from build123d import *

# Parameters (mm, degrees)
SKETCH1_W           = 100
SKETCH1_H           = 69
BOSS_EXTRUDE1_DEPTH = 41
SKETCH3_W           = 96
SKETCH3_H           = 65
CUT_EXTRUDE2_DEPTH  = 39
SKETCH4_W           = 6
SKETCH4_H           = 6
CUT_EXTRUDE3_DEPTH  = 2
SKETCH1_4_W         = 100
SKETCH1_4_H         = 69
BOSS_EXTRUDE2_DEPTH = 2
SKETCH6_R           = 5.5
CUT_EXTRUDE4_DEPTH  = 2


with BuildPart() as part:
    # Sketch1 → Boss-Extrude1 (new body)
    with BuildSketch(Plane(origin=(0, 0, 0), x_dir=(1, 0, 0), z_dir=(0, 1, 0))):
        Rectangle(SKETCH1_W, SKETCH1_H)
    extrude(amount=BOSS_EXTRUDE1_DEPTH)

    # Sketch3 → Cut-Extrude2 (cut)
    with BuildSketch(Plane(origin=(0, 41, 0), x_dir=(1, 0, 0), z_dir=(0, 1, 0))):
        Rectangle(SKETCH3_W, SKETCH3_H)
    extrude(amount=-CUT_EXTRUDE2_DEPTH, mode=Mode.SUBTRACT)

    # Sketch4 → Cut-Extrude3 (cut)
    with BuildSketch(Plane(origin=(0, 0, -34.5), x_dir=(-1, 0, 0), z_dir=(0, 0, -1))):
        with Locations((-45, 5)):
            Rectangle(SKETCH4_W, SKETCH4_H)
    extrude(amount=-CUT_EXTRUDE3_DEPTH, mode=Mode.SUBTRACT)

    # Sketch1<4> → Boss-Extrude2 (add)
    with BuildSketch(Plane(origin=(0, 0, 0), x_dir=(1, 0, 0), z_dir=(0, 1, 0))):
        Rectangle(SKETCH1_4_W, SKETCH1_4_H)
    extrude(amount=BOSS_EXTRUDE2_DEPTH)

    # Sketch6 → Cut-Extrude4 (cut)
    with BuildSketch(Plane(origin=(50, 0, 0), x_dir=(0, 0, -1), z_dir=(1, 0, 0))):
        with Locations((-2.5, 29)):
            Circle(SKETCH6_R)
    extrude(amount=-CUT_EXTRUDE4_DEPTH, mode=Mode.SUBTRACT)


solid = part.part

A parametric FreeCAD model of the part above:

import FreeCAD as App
import Part
import Sketcher

doc = App.newDocument("Part")
body = doc.addObject("PartDesign::Body", "Body")

sketch1 = body.newObject("Sketcher::SketchObject", "Sketch")
sketch1.AttachmentSupport = (doc.getObject("XZ_Plane"), [""])
sketch1.MapMode = "FlatFace"
sketch1.addGeometry(Part.LineSegment(App.Vector(-50, -34, 0), App.Vector(-50, 34, 0)), False)
sketch1.addGeometry(Part.LineSegment(App.Vector(-50, 34, 0), App.Vector(50, 34, 0)), False)
sketch1.addGeometry(Part.LineSegment(App.Vector(50, 34, 0), App.Vector(50, -34, 0)), False)
sketch1.addGeometry(Part.LineSegment(App.Vector(50, -34, 0), App.Vector(-50, -34, 0)), False)
sketch1.addConstraint(Sketcher.Constraint("Coincident", 0, 2, 1, 1))
sketch1.addConstraint(Sketcher.Constraint("Coincident", 1, 2, 2, 1))
sketch1.addConstraint(Sketcher.Constraint("Coincident", 2, 2, 3, 1))
sketch1.addConstraint(Sketcher.Constraint("Coincident", 3, 2, 0, 1))
sketch1.addConstraint(Sketcher.Constraint("Vertical", 0))
sketch1.addConstraint(Sketcher.Constraint("Horizontal", 1))
sketch1.addConstraint(Sketcher.Constraint("Vertical", 2))
sketch1.addConstraint(Sketcher.Constraint("Horizontal", 3))
sketch1.addConstraint(Sketcher.Constraint("Symmetric", 0, 2, 2, 2, -1, 1))
sketch1.addConstraint(Sketcher.Constraint("DistanceX", 1, 1, 1, 2, 100.0))
sketch1.addConstraint(Sketcher.Constraint("DistanceY", 0, 1, 0, 2, 69.0))
pad1 = body.newObject("PartDesign::Pad", "Pad")
pad1.Profile = sketch1
pad1.Length = 41
pad1.Reversed = True

sketch2 = body.newObject("Sketcher::SketchObject", "Sketch001")
sketch2.AttachmentSupport = (doc.getObject("XZ_Plane"), [""])
sketch2.MapMode = "FlatFace"
sketch2.AttachmentOffset = App.Placement(App.Vector(0, 0, -41), App.Rotation())
sketch2.addGeometry(Part.LineSegment(App.Vector(-48, -32, 0), App.Vector(-48, 32, 0)), False)
sketch2.addGeometry(Part.LineSegment(App.Vector(-48, 32, 0), App.Vector(48, 32, 0)), False)
sketch2.addGeometry(Part.LineSegment(App.Vector(48, 32, 0), App.Vector(48, -32, 0)), False)
sketch2.addGeometry(Part.LineSegment(App.Vector(48, -32, 0), App.Vector(-48, -32, 0)), False)
sketch2.addConstraint(Sketcher.Constraint("Coincident", 0, 2, 1, 1))
sketch2.addConstraint(Sketcher.Constraint("Coincident", 1, 2, 2, 1))
sketch2.addConstraint(Sketcher.Constraint("Coincident", 2, 2, 3, 1))
sketch2.addConstraint(Sketcher.Constraint("Coincident", 3, 2, 0, 1))
sketch2.addConstraint(Sketcher.Constraint("Vertical", 0))
sketch2.addConstraint(Sketcher.Constraint("Horizontal", 1))
sketch2.addConstraint(Sketcher.Constraint("Vertical", 2))
sketch2.addConstraint(Sketcher.Constraint("Horizontal", 3))
sketch2.addConstraint(Sketcher.Constraint("Symmetric", 0, 2, 2, 2, -1, 1))
sketch2.addConstraint(Sketcher.Constraint("DistanceX", 1, 1, 1, 2, 96.0))
sketch2.addConstraint(Sketcher.Constraint("DistanceY", 0, 1, 0, 2, 65.0))
pocket1 = body.newObject("PartDesign::Pocket", "Pocket")
pocket1.Profile = sketch2
pocket1.Length = 39
pocket1.Reversed = True

sketch3 = body.newObject("Sketcher::SketchObject", "Sketch002")
sketch3.AttachmentSupport = (doc.getObject("XY_Plane"), [""])
sketch3.MapMode = "FlatFace"
sketch3.AttachmentOffset = App.Placement(App.Vector(0, 0, -34.5), App.Rotation())
sketch3.addGeometry(Part.LineSegment(App.Vector(48, 8, 0), App.Vector(48, 2, 0)), False)
sketch3.addGeometry(Part.LineSegment(App.Vector(48, 2, 0), App.Vector(42, 2, 0)), False)
sketch3.addGeometry(Part.LineSegment(App.Vector(42, 2, 0), App.Vector(42, 8, 0)), False)
sketch3.addGeometry(Part.LineSegment(App.Vector(42, 8, 0), App.Vector(48, 8, 0)), False)
sketch3.addConstraint(Sketcher.Constraint("Coincident", 0, 2, 1, 1))
sketch3.addConstraint(Sketcher.Constraint("Coincident", 1, 2, 2, 1))
sketch3.addConstraint(Sketcher.Constraint("Coincident", 2, 2, 3, 1))
sketch3.addConstraint(Sketcher.Constraint("Coincident", 3, 2, 0, 1))
sketch3.addConstraint(Sketcher.Constraint("Vertical", 0))
sketch3.addConstraint(Sketcher.Constraint("Horizontal", 1))
sketch3.addConstraint(Sketcher.Constraint("Vertical", 2))
sketch3.addConstraint(Sketcher.Constraint("Horizontal", 3))
sketch3.addConstraint(Sketcher.Constraint("Equal", 3, 0))
sketch3.addConstraint(Sketcher.Constraint("DistanceX", 1, 2, 1, 1, 6.0))
sketch3.addConstraint(Sketcher.Constraint("DistanceX", -1, 1, 0, 2, 48.0))
sketch3.addConstraint(Sketcher.Constraint("DistanceY", -1, 1, 0, 2, 2.0))
pocket2 = body.newObject("PartDesign::Pocket", "Pocket001")
pocket2.Profile = sketch3
pocket2.Length = 2
pocket2.Reversed = True

sketch4 = body.newObject("Sketcher::SketchObject", "Sketch003")
sketch4.AttachmentSupport = (doc.getObject("XZ_Plane"), [""])
sketch4.MapMode = "FlatFace"
sketch4.addGeometry(Part.LineSegment(App.Vector(-50, -34, 0), App.Vector(-50, 34, 0)), False)
sketch4.addGeometry(Part.LineSegment(App.Vector(-50, 34, 0), App.Vector(50, 34, 0)), False)
sketch4.addGeometry(Part.LineSegment(App.Vector(50, 34, 0), App.Vector(50, -34, 0)), False)
sketch4.addGeometry(Part.LineSegment(App.Vector(50, -34, 0), App.Vector(-50, -34, 0)), False)
sketch4.addConstraint(Sketcher.Constraint("Coincident", 0, 2, 1, 1))
sketch4.addConstraint(Sketcher.Constraint("Coincident", 1, 2, 2, 1))
sketch4.addConstraint(Sketcher.Constraint("Coincident", 2, 2, 3, 1))
sketch4.addConstraint(Sketcher.Constraint("Coincident", 3, 2, 0, 1))
sketch4.addConstraint(Sketcher.Constraint("Vertical", 0))
sketch4.addConstraint(Sketcher.Constraint("Horizontal", 1))
sketch4.addConstraint(Sketcher.Constraint("Vertical", 2))
sketch4.addConstraint(Sketcher.Constraint("Horizontal", 3))
sketch4.addConstraint(Sketcher.Constraint("Symmetric", 0, 2, 2, 2, -1, 1))
sketch4.addConstraint(Sketcher.Constraint("DistanceX", 1, 1, 1, 2, 100.0))
sketch4.addConstraint(Sketcher.Constraint("DistanceY", 0, 1, 0, 2, 69.0))
pad2 = body.newObject("PartDesign::Pad", "Pad001")
pad2.Profile = sketch4
pad2.Length = 2
pad2.Reversed = True

sketch5 = body.newObject("Sketcher::SketchObject", "Sketch004")
sketch5.AttachmentSupport = (doc.getObject("YZ_Plane"), [""])
sketch5.MapMode = "FlatFace"
sketch5.AttachmentOffset = App.Placement(App.Vector(0, 0, 50), App.Rotation())
sketch5.addGeometry(Part.Circle(App.Vector(29, 2, 0), App.Vector(0, 0, 1), 6), False)
sketch5.addConstraint(Sketcher.Constraint("Diameter", 0, 11.0))
sketch5.addConstraint(Sketcher.Constraint("DistanceX", -1, 1, 0, 3, 29.0))
sketch5.addConstraint(Sketcher.Constraint("DistanceY", -1, 1, 0, 3, 2.5))
pocket3 = body.newObject("PartDesign::Pocket", "Pocket002")
pocket3.Profile = sketch5
pocket3.Length = 2

doc.recompute()
